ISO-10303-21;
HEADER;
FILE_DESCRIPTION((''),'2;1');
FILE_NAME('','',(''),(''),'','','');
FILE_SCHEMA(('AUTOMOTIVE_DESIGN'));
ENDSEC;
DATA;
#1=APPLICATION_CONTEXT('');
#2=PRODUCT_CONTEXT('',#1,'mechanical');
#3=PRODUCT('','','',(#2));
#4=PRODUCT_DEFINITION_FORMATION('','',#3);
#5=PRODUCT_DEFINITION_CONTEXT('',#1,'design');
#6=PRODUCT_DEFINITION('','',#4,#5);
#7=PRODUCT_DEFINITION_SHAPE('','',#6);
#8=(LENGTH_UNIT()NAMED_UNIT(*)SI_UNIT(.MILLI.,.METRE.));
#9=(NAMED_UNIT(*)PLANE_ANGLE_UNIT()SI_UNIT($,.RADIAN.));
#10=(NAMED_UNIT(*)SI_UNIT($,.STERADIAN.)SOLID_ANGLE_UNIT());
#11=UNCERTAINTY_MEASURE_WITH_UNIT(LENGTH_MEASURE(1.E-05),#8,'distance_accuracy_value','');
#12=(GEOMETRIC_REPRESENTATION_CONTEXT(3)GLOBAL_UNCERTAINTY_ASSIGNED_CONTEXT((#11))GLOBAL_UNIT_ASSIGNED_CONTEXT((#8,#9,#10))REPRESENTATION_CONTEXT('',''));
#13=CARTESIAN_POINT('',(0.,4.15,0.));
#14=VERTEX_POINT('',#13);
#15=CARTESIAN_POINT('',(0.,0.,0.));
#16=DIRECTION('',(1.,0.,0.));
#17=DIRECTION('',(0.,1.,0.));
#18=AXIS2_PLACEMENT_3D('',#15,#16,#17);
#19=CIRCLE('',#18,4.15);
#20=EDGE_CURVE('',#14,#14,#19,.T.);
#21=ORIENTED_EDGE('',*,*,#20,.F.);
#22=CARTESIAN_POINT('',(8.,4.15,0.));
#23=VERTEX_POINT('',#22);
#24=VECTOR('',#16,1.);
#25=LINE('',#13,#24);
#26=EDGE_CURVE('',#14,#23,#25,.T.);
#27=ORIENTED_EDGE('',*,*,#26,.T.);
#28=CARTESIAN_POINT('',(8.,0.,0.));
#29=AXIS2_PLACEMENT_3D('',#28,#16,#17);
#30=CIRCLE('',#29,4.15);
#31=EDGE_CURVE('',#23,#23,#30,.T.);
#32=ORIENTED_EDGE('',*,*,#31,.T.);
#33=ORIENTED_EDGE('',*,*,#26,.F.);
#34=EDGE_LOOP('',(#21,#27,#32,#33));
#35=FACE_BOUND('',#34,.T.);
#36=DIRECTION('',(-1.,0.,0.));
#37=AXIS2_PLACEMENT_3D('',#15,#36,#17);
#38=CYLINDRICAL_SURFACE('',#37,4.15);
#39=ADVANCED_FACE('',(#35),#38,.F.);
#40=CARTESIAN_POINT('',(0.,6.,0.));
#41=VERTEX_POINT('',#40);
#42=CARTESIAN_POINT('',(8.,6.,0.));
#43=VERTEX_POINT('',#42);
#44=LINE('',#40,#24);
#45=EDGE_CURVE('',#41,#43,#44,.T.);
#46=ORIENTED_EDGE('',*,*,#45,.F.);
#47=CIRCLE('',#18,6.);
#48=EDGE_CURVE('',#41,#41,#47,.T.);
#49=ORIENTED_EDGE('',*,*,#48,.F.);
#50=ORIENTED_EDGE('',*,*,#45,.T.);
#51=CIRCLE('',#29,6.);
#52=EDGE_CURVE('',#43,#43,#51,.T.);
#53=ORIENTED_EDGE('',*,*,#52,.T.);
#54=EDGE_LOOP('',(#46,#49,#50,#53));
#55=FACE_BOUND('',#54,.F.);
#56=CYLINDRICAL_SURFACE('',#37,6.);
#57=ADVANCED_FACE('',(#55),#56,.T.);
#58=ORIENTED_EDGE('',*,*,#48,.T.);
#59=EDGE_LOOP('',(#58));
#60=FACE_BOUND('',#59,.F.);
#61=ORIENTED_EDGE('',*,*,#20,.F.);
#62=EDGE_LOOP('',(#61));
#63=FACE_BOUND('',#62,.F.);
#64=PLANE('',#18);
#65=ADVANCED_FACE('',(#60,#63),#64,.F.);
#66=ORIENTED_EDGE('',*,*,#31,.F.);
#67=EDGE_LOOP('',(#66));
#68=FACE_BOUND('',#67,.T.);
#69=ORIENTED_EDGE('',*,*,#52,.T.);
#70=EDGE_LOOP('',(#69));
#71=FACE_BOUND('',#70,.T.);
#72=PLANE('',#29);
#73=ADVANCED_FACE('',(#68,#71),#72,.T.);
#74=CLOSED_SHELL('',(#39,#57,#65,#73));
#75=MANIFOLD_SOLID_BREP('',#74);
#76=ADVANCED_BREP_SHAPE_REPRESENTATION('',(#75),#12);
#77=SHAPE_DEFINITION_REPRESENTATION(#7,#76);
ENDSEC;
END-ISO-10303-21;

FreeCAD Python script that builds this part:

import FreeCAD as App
import Part
import Sketcher
from FreeCAD import Vector
Q = App.Units.Quantity

doc = App.newDocument("Part")
params = doc.addObject("Spreadsheet::Sheet", "Params")
for row, (alias, value) in enumerate([
    ("sketch1_diameter", "12 mm"),
    ("sketch1_diameter2", "8.3 mm"),
    ("pad1_length", "8 mm"),
], start=1):
    params.set(f"A{row}", alias)
    params.set(f"B{row}", "=" + value)
    params.setAlias(f"B{row}", alias)

body = doc.addObject("PartDesign::Body", "Body")

sketch1 = body.newObject("Sketcher::SketchObject", "Sketch")
sketch1.AttachmentSupport = (doc.getObject("YZ_Plane"), [""])
sketch1.MapMode = "FlatFace"
sketch1.addGeometry(Part.Circle(Vector(0, 0, 0), Vector(0, 0, 1), 6), False)
sketch1.addGeometry(Part.Circle(Vector(0, 0, 0), Vector(0, 0, 1), 4.2), False)
sketch1.addConstraint(Sketcher.Constraint("Coincident", 0, 3, -1, 1))
sketch1.addConstraint(Sketcher.Constraint("Coincident", 1, 3, -1, 1))
sketch1.addConstraint(Sketcher.Constraint("Diameter", 0, Q("12 mm")))
sketch1.addConstraint(Sketcher.Constraint("Diameter", 1, Q("8.3 mm")))
sketch1.setExpression("Constraints[2]", "Params.sketch1_diameter")
sketch1.setExpression("Constraints[3]", "Params.sketch1_diameter2")
pad1 = body.newObject("PartDesign::Pad", "Pad")
pad1.Profile = sketch1
pad1.setExpression("Length", "Params.pad1_length")

doc.recompute()
